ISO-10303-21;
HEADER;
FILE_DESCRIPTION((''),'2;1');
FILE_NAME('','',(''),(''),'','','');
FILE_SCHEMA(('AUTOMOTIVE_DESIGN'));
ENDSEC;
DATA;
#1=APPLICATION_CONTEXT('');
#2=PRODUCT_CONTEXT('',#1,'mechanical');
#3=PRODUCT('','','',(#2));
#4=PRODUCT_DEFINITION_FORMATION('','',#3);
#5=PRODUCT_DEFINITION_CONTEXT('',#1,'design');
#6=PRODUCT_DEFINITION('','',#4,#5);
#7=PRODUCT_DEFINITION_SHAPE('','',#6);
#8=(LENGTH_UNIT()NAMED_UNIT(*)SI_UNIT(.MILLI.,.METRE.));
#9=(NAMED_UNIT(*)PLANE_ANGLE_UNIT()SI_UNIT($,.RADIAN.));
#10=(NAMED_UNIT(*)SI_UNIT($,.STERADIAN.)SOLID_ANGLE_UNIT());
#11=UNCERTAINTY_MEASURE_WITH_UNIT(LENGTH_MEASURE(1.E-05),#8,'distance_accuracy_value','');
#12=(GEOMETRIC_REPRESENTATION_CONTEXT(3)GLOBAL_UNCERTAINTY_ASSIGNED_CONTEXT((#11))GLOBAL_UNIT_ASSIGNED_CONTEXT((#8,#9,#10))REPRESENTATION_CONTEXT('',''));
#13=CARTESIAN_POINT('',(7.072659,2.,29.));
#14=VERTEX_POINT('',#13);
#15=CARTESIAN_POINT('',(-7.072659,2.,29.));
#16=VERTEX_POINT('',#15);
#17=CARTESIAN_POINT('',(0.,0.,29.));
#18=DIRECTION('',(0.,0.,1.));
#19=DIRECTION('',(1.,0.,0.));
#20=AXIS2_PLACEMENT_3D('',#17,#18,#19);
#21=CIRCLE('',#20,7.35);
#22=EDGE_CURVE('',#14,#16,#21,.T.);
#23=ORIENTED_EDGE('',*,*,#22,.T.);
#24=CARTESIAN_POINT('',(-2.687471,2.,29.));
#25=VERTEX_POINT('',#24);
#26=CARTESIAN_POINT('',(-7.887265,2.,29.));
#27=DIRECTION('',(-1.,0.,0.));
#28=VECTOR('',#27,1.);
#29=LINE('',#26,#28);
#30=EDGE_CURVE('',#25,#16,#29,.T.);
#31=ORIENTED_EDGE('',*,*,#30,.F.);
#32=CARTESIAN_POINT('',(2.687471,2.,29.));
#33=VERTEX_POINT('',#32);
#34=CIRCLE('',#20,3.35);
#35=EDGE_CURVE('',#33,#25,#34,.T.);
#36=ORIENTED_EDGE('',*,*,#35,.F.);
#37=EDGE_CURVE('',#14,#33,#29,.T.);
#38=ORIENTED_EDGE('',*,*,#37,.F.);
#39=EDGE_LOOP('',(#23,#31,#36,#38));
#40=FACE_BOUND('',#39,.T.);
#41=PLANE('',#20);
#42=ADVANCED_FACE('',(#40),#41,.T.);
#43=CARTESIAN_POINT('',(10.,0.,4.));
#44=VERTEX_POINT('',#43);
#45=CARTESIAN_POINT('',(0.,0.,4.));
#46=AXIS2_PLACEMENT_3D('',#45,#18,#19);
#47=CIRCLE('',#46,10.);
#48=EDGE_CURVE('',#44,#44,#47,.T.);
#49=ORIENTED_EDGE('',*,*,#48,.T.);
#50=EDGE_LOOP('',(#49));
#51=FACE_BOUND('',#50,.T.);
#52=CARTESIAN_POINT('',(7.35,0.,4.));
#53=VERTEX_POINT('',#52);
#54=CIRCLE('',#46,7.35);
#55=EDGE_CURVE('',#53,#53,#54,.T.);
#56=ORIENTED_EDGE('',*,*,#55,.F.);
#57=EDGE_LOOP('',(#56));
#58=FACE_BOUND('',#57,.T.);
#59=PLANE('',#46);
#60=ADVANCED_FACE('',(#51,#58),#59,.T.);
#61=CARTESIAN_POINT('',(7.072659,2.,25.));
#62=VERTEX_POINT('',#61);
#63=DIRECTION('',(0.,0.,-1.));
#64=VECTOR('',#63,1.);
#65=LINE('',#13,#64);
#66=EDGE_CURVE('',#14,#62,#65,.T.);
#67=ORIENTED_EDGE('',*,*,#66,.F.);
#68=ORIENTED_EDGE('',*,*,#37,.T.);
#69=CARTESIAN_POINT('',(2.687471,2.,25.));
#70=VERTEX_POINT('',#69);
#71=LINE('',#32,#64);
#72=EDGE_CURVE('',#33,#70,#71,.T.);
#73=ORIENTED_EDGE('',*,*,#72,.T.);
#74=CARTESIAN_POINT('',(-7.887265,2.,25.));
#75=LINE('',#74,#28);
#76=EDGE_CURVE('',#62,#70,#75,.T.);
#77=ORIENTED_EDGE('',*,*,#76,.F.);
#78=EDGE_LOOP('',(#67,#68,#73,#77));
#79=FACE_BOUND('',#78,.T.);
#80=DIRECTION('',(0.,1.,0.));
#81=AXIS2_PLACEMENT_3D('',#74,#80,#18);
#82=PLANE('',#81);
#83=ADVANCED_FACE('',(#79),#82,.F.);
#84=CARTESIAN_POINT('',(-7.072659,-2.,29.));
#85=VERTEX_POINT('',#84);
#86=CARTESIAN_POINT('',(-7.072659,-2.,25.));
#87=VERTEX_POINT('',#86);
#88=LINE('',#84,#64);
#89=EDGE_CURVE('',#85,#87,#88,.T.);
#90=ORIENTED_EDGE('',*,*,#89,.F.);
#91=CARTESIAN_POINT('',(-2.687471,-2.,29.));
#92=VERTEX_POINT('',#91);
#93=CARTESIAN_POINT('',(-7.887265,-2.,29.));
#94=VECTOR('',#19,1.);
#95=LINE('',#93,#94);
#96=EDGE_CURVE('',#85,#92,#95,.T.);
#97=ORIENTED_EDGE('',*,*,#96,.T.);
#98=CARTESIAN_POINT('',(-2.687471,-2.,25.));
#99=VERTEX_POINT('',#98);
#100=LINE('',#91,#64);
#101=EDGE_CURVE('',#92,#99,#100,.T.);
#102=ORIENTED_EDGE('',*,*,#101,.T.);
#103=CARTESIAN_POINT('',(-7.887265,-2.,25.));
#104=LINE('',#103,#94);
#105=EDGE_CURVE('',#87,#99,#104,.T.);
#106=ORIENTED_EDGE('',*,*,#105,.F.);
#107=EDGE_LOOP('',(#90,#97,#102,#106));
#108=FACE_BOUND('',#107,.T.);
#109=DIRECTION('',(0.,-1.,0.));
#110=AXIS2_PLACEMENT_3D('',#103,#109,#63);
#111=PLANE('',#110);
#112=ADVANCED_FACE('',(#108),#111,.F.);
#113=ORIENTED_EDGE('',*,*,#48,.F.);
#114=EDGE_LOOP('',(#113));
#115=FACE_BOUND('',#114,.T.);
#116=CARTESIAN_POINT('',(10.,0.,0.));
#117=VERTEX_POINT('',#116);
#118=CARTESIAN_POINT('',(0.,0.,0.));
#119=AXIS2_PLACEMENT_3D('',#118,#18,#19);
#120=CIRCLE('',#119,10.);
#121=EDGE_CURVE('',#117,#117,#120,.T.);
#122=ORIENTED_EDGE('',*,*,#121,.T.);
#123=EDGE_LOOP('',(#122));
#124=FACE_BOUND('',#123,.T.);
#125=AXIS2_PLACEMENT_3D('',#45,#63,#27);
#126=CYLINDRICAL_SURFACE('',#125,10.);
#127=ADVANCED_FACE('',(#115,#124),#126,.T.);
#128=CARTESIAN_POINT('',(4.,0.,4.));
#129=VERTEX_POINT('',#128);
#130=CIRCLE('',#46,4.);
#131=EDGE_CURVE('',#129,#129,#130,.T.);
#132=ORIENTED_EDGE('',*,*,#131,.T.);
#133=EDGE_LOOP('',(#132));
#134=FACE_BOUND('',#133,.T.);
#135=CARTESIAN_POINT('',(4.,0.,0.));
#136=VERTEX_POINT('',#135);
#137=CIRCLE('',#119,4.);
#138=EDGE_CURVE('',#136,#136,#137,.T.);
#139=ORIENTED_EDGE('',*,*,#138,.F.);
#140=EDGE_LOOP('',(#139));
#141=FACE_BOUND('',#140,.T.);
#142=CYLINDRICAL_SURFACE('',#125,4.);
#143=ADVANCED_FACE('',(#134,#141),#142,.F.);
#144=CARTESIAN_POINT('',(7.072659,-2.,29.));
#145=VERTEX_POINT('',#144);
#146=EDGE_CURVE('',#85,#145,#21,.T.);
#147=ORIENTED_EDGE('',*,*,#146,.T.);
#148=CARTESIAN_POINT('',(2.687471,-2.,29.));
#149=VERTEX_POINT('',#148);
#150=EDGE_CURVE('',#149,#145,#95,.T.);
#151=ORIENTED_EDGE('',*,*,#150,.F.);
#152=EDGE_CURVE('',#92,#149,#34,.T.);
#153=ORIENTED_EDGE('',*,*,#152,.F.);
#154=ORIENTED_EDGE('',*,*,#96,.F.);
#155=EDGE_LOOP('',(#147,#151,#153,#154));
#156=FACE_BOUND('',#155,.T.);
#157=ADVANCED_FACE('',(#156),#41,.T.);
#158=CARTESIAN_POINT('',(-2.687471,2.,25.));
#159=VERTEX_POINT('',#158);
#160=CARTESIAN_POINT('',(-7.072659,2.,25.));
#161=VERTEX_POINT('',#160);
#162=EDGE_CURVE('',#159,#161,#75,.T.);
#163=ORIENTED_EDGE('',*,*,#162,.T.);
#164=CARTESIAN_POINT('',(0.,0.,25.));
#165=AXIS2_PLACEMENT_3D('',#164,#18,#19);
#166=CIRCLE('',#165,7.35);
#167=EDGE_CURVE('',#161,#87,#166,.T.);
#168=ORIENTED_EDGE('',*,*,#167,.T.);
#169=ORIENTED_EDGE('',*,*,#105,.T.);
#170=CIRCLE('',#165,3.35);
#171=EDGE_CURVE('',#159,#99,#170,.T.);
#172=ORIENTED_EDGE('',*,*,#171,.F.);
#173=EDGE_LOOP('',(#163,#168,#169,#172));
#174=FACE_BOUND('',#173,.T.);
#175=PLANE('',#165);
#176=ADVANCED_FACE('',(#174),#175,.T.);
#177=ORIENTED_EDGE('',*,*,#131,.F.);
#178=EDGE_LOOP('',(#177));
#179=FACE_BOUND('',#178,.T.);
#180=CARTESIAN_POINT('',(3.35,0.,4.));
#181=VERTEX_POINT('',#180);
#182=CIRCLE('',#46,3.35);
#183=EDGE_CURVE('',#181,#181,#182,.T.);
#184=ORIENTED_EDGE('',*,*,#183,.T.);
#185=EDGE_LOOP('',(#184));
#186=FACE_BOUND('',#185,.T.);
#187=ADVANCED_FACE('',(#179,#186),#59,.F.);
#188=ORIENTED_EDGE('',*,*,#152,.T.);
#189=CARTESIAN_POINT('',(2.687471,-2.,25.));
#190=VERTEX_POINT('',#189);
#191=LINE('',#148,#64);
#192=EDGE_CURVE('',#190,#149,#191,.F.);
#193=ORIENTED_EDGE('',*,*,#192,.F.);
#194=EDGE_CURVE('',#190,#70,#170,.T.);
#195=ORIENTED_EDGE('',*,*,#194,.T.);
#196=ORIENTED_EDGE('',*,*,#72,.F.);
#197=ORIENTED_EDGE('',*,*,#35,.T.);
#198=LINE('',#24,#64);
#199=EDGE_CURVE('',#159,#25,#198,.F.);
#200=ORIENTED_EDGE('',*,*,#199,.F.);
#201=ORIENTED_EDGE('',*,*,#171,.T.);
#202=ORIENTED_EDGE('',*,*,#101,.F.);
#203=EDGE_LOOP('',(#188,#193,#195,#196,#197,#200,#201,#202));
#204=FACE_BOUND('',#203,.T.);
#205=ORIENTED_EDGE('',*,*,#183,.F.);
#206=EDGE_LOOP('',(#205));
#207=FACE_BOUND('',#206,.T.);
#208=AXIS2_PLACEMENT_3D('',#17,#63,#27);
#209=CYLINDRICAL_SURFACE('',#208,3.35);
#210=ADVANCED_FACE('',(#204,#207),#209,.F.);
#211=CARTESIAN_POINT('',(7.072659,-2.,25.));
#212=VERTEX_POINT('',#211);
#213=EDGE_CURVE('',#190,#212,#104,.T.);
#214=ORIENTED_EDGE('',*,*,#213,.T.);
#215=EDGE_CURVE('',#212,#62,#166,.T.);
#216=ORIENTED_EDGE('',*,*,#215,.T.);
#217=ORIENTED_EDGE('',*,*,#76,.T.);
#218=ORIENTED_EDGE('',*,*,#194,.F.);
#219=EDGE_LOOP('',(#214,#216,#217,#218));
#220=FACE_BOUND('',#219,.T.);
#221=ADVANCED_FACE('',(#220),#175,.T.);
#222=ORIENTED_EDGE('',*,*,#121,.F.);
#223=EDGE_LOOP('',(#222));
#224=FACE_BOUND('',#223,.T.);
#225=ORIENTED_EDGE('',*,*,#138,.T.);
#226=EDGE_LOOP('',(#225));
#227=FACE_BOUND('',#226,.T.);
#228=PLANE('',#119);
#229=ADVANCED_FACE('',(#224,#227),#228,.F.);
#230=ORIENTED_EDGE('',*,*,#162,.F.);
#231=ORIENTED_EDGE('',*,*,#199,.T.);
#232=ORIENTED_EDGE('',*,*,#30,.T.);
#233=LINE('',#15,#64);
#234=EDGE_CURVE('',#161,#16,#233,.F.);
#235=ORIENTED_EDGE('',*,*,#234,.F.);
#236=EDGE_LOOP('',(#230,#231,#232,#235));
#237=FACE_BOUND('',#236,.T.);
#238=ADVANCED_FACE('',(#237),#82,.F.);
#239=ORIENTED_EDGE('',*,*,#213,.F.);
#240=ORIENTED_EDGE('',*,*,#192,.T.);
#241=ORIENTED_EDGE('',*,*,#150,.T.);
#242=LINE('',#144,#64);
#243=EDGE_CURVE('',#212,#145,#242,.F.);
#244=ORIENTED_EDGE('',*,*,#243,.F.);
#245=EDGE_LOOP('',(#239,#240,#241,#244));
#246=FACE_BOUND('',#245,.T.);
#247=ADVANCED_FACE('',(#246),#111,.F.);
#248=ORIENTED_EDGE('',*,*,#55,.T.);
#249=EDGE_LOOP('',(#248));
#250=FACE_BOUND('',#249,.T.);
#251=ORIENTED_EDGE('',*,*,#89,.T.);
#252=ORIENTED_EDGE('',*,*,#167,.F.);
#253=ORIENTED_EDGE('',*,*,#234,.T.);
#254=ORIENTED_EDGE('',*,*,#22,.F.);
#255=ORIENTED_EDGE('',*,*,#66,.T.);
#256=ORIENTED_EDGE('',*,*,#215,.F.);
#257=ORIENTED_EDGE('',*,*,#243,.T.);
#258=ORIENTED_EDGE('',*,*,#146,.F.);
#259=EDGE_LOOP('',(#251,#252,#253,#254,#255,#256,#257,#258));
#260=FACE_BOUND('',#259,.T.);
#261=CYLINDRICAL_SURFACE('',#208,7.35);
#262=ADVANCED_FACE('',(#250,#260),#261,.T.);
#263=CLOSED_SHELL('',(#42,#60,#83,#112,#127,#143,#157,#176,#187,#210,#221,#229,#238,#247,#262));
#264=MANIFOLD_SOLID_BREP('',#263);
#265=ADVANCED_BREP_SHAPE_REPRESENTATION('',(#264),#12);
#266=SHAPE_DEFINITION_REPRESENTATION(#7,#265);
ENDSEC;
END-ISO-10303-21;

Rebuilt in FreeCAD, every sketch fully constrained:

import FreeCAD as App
import Part
import Sketcher
Q = App.Units.Quantity

doc = App.newDocument("Part")
body = doc.addObject("PartDesign::Body", "Body")

# Sketch on XY plane
sketch1 = body.newObject("Sketcher::SketchObject", "Sketch")
sketch1.AttachmentSupport = (doc.getObject("XY_Plane"), [""])
sketch1.MapMode = "FlatFace"
sketch1.addGeometry(Part.Circle(App.Vector(0, 0, 0), App.Vector(0, 0, 1), 10), False)
sketch1.addGeometry(Part.Circle(App.Vector(0, 0, 0), App.Vector(0, 0, 1), 4), False)
sketch1.addConstraint(Sketcher.Constraint("Coincident", 0, 3, -1, 1))
sketch1.addConstraint(Sketcher.Constraint("Coincident", 1, 3, -1, 1))
sketch1.addConstraint(Sketcher.Constraint("Diameter", 0, Q("20 mm")))
sketch1.addConstraint(Sketcher.Constraint("Diameter", 1, Q("8 mm")))
pad1 = body.newObject("PartDesign::Pad", "Pad")
pad1.Profile = sketch1
pad1.Length = 4

# Sketch on XY plane
sketch2 = body.newObject("Sketcher::SketchObject", "Sketch001")
sketch2.AttachmentSupport = (doc.getObject("XY_Plane"), [""])
sketch2.MapMode = "FlatFace"
sketch2.AttachmentOffset = App.Placement(App.Vector(0, 0, 4), App.Rotation())
sketch2.addGeometry(Part.Circle(App.Vector(0, 0, 0), App.Vector(0, 0, 1), 7.3), False)
sketch2.addGeometry(Part.Circle(App.Vector(0, 0, 0), App.Vector(0, 0, 1), 3.4), False)
sketch2.addConstraint(Sketcher.Constraint("Coincident", 0, 3, -1, 1))
sketch2.addConstraint(Sketcher.Constraint("Coincident", 1, 3, -1, 1))
sketch2.addConstraint(Sketcher.Constraint("Diameter", 0, Q("14.7 mm")))
sketch2.addConstraint(Sketcher.Constraint("Diameter", 1, Q("6.7 mm")))
pad2 = body.newObject("PartDesign::Pad", "Pad001")
pad2.Profile = sketch2
pad2.Length = 25

# Sketch on XY plane
sketch3 = body.newObject("Sketcher::SketchObject", "Sketch002")
sketch3.AttachmentSupport = (doc.getObject("XY_Plane"), [""])
sketch3.MapMode = "FlatFace"
sketch3.AttachmentOffset = App.Placement(App.Vector(0, 0, 29), App.Rotation())
sketch3.addGeometry(Part.LineSegment(App.Vector(-7.9, 2, 0), App.Vector(-7.9, -2, 0)), False)
sketch3.addGeometry(Part.LineSegment(App.Vector(-7.9, -2, 0), App.Vector(7.9, -2, 0)), False)
sketch3.addGeometry(Part.LineSegment(App.Vector(7.9, -2, 0), App.Vector(7.9, 2, 0)), False)
sketch3.addGeometry(Part.LineSegment(App.Vector(7.9, 2, 0), App.Vector(-7.9, 2, 0)), False)
sketch3.addConstraint(Sketcher.Constraint("Coincident", 0, 2, 1, 1))
sketch3.addConstraint(Sketcher.Constraint("Coincident", 1, 2, 2, 1))
sketch3.addConstraint(Sketcher.Constraint("Coincident", 2, 2, 3, 1))
sketch3.addConstraint(Sketcher.Constraint("Coincident", 3, 2, 0, 1))
sketch3.addConstraint(Sketcher.Constraint("Vertical", 0))
sketch3.addConstraint(Sketcher.Constraint("Horizontal", 1))
sketch3.addConstraint(Sketcher.Constraint("Vertical", 2))
sketch3.addConstraint(Sketcher.Constraint("Horizontal", 3))
sketch3.addConstraint(Sketcher.Constraint("Symmetric", 0, 2, 2, 2, -1, 1))
sketch3.addConstraint(Sketcher.Constraint("DistanceY", 0, 2, 0, 1, Q("4 mm")))
sketch3.addConstraint(Sketcher.Constraint("DistanceX", 1, 1, 1, 2, Q("15.77453 mm")))
pocket1 = body.newObject("PartDesign::Pocket", "Pocket")
pocket1.Profile = sketch3
pocket1.Length = 4

doc.recompute()
